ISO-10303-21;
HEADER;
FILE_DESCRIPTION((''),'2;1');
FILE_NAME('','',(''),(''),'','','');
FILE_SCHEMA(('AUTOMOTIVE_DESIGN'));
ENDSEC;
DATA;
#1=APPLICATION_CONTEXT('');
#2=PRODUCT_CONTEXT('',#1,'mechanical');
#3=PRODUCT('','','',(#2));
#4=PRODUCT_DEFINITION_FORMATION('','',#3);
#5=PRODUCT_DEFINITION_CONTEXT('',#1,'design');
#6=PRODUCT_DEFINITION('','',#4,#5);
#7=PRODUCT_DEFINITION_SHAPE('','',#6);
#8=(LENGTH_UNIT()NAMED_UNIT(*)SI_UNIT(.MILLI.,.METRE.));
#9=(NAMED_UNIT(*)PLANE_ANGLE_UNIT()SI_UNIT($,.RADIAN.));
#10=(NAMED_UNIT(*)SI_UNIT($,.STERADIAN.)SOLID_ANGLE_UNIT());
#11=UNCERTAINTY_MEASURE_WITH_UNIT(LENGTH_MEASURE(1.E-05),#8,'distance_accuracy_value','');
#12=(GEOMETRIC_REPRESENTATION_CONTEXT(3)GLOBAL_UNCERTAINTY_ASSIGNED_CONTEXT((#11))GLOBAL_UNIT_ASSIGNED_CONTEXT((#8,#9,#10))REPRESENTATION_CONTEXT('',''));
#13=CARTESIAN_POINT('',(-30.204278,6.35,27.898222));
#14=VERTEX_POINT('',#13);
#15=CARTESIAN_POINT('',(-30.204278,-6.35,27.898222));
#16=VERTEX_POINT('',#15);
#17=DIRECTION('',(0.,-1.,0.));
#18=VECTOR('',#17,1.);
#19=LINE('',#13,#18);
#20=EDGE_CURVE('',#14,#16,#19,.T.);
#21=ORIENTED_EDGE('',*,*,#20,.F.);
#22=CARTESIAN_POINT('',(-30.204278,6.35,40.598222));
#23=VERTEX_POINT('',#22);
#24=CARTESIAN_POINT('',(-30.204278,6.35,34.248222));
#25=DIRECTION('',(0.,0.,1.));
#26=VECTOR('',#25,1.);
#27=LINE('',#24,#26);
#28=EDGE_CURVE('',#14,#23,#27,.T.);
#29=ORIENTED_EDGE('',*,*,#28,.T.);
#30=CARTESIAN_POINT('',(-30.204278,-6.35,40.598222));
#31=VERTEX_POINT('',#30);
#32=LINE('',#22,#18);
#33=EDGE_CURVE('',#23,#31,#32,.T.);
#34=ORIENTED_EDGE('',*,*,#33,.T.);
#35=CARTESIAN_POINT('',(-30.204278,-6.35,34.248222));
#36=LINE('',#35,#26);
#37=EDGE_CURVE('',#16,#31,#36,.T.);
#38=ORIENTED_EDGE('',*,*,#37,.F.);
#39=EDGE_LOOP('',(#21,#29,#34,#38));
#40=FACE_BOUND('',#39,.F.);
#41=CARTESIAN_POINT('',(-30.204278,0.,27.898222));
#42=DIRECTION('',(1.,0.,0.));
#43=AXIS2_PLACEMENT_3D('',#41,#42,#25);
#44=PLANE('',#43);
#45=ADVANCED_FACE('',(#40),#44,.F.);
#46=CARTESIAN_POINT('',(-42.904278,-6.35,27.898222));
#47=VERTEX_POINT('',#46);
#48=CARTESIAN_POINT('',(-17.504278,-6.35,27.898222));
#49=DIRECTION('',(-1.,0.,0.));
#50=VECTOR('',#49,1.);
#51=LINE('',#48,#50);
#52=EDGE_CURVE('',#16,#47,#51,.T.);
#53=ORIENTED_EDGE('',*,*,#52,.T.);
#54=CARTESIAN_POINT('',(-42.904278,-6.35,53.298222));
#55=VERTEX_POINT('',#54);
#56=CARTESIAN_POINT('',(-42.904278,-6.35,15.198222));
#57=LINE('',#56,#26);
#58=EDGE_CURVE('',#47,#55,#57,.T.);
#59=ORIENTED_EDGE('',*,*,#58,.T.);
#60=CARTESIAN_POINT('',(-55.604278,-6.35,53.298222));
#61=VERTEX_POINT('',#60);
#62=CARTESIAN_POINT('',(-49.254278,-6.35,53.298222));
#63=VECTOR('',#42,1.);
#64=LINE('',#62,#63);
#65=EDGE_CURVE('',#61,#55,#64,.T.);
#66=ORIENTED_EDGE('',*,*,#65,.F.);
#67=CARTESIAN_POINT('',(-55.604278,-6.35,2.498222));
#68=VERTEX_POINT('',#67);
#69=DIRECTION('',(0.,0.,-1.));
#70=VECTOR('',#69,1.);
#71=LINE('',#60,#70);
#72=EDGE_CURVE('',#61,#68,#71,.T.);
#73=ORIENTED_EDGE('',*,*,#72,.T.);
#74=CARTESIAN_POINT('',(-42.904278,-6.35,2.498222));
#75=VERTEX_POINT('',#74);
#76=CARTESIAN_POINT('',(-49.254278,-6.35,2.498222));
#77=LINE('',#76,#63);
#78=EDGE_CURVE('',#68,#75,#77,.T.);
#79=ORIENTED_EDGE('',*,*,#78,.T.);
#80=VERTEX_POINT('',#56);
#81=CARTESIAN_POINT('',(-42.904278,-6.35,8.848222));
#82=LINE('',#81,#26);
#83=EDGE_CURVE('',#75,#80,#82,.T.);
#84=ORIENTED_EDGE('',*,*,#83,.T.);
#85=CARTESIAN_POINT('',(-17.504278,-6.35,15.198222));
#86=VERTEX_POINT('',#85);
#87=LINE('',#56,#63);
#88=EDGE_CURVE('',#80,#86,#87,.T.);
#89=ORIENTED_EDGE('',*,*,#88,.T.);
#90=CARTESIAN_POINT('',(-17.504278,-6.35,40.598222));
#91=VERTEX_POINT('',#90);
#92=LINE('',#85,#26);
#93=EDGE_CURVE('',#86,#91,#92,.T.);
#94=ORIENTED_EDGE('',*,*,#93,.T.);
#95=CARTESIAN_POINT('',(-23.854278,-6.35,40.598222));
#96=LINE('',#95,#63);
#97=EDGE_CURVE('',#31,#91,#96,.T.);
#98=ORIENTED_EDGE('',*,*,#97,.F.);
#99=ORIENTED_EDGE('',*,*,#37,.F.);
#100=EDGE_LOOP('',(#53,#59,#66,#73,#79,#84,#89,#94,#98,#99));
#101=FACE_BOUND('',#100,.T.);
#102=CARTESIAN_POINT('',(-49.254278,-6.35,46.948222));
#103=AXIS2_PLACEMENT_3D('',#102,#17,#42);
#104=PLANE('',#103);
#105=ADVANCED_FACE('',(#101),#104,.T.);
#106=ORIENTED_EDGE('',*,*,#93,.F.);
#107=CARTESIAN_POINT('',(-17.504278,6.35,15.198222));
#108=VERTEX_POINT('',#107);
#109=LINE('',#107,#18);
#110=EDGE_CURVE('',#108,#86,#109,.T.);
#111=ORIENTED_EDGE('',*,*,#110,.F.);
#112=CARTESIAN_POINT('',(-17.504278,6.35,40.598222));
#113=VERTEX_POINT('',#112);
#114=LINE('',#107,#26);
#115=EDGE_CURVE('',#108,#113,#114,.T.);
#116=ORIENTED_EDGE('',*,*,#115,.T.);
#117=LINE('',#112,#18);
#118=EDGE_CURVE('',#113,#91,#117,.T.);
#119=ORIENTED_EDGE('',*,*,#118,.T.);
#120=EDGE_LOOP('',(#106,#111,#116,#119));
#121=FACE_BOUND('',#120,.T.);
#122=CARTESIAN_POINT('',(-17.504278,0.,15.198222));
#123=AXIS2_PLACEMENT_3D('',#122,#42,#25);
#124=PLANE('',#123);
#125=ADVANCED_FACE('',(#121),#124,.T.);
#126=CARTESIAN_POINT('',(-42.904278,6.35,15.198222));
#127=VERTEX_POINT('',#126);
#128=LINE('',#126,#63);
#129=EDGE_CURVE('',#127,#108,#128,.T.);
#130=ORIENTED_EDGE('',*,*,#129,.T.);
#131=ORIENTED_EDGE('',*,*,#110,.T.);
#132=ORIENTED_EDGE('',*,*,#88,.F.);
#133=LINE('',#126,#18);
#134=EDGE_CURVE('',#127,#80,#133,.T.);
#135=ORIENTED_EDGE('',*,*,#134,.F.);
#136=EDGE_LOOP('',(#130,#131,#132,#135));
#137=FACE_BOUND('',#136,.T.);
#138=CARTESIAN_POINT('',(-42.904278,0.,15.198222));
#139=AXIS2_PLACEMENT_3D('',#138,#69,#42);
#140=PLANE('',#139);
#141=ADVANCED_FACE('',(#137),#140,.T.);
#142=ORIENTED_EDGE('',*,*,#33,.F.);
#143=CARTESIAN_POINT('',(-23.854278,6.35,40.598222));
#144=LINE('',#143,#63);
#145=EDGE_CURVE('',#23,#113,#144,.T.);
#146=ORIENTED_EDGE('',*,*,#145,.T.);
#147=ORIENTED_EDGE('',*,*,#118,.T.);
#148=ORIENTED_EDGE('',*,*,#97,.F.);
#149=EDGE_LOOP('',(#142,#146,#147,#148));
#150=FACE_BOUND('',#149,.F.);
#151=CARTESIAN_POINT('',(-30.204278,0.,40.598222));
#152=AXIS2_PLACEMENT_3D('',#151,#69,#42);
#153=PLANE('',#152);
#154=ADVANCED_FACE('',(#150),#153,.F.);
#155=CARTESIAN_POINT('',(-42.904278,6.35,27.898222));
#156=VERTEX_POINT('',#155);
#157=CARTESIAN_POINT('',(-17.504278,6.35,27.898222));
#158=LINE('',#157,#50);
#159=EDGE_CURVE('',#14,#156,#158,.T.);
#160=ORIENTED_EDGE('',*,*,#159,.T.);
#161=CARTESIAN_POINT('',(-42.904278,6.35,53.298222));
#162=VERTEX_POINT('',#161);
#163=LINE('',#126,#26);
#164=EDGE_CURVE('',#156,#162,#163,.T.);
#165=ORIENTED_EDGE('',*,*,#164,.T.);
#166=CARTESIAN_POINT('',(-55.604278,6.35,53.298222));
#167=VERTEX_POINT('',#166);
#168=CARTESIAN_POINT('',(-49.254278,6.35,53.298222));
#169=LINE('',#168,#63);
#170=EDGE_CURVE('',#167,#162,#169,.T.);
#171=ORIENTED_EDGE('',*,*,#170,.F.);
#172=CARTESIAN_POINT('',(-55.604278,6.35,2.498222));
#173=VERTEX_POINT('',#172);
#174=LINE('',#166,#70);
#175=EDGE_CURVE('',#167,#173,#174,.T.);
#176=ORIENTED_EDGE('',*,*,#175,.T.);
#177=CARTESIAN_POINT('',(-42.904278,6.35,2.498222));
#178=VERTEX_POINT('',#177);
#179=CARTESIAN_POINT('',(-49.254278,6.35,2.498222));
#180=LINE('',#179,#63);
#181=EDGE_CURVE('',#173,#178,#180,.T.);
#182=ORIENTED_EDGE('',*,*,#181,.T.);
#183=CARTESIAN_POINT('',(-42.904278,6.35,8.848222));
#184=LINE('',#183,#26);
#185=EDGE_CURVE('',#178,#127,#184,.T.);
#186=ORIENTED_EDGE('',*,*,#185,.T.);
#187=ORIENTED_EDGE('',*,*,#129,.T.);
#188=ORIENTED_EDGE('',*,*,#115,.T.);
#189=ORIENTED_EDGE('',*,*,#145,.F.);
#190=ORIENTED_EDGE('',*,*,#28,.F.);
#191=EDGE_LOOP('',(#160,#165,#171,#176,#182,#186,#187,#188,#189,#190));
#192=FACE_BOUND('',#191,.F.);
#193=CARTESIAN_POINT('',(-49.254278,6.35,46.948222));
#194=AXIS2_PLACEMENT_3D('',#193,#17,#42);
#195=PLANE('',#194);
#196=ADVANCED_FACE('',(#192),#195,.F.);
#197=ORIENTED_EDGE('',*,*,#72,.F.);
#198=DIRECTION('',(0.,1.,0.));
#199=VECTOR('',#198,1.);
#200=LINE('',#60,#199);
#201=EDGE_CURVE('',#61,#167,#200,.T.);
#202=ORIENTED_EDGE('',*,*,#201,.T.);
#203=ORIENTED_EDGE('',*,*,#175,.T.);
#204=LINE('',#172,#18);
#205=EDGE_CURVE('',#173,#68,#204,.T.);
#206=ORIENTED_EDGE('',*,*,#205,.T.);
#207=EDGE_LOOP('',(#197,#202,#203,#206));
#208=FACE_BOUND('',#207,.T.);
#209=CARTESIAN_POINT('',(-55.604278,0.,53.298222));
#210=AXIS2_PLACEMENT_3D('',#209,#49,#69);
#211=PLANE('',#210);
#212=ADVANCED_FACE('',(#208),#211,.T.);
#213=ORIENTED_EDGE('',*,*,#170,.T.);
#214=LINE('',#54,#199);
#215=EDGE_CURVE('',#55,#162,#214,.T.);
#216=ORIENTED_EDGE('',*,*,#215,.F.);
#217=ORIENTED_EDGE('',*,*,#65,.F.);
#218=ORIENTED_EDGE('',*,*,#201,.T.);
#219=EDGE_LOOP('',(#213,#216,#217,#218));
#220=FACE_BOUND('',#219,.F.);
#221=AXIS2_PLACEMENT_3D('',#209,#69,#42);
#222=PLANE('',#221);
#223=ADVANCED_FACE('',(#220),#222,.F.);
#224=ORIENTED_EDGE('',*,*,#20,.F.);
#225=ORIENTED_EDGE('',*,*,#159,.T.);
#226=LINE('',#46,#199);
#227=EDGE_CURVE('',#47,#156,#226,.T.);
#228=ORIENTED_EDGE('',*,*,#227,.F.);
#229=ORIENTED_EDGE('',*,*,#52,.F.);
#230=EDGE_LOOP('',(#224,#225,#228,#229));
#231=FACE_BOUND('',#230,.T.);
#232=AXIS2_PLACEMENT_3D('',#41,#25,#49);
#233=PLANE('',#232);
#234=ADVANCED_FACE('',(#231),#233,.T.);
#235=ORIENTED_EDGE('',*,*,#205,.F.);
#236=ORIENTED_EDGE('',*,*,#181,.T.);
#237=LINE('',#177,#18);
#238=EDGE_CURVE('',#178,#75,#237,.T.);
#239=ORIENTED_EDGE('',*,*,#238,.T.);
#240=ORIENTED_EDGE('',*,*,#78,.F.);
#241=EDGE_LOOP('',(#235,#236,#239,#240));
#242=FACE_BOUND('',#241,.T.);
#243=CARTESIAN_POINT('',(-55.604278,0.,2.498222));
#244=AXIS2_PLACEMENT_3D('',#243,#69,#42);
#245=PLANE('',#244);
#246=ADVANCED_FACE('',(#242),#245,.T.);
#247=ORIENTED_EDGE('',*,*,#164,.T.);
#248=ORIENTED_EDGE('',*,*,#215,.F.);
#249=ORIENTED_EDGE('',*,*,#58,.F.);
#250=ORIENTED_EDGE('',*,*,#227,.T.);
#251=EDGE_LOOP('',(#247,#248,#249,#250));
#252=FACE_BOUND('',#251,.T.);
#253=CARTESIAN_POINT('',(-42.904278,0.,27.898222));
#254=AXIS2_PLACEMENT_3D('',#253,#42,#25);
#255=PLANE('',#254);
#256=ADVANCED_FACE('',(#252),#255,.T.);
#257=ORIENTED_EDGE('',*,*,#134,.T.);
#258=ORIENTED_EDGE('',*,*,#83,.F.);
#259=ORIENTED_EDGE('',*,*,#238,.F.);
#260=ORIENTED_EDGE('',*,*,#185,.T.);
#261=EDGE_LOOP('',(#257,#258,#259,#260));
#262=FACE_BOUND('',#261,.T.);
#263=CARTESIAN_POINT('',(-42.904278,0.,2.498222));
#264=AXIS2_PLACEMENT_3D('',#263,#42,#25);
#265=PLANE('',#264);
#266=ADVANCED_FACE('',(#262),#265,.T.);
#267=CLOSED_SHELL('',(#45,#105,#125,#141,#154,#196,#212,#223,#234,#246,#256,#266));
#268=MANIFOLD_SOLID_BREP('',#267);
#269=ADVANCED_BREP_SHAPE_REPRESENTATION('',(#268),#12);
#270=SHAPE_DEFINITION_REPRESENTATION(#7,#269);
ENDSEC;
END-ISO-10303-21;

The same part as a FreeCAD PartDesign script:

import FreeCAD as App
import Part
import Sketcher

V = App.Vector
Q = App.Units.Quantity


def add_polygon(sketch, points):
    """Adds a closed chain of lines whose ends are joined by coincident constraints."""
    first, n = sketch.GeometryCount, len(points)
    for a, b in zip(points, points[1:] + points[:1]):
        sketch.addGeometry(Part.LineSegment(App.Vector(*a, 0), App.Vector(*b, 0)), False)
    for i in range(n):
        sketch.addConstraint(Sketcher.Constraint("Coincident", first + i, 2, first + (i + 1) % n, 1))

doc = App.newDocument("Part")
params = doc.addObject("Spreadsheet::Sheet", "Params")
for row, (alias, value) in enumerate([
    ("sketch1_width", "1 in"),
    ("pad1_length", "0.5 in"),
], start=1):
    params.set(f"A{row}", alias)
    params.set(f"B{row}", "=" + value)
    params.setAlias(f"B{row}", alias)

body = doc.addObject("PartDesign::Body", "Body")

# Sketch on XZ plane
sketch1 = body.newObject("Sketcher::SketchObject", "Sketch")
sketch1.AttachmentSupport = (doc.getObject("XZ_Plane"), [""])
sketch1.MapMode = "FlatFace"
add_polygon(sketch1, [(-55.604278, 53.298222), (-55.604278, 2.498222), (-42.904278, 2.498222), (-42.904278, 15.198222), (-17.504278, 15.198222), (-17.504278, 40.598222), (-30.204278, 40.598222), (-30.204278, 27.898222), (-42.904278, 27.898222), (-42.904278, 53.298222)])  # lines 0-9
sketch1.addConstraint([
    Sketcher.Constraint("Vertical", 0),
    Sketcher.Constraint("Horizontal", 1),
    Sketcher.Constraint("Vertical", 2),
    Sketcher.Constraint("Horizontal", 3),
    Sketcher.Constraint("Vertical", 4),
    Sketcher.Constraint("Horizontal", 5),
    Sketcher.Constraint("Vertical", 6),
    Sketcher.Constraint("Horizontal", 7),
    Sketcher.Constraint("Vertical", 8),
    Sketcher.Constraint("Horizontal", 9),
    Sketcher.Constraint("Vertical", 2, 2, 7, 2),
    Sketcher.Constraint("Equal", 1, 5),
    Sketcher.Constraint("Equal", 5, 7),
    Sketcher.Constraint("Equal", 9, 2),
    Sketcher.Constraint("Equal", 3, 4),
    Sketcher.Constraint("Equal", 2, 6),
    Sketcher.Constraint("Equal", 4, 8),
    Sketcher.Constraint("DistanceX", 3, 1, 3, 2, Q("1 in")),
    Sketcher.Constraint("DistanceX", 0, 2, -1, 1, 55.604278),
    Sketcher.Constraint("DistanceY", -1, 1, 0, 2, 2.498222),
])
sketch1.setExpression("Constraints[27]", "Params.sketch1_width")
pad1 = body.newObject("PartDesign::Pad", "Pad")
pad1.Profile = sketch1
pad1.setExpression("Length", "Params.pad1_length")
pad1.Midplane = True

doc.recompute()
